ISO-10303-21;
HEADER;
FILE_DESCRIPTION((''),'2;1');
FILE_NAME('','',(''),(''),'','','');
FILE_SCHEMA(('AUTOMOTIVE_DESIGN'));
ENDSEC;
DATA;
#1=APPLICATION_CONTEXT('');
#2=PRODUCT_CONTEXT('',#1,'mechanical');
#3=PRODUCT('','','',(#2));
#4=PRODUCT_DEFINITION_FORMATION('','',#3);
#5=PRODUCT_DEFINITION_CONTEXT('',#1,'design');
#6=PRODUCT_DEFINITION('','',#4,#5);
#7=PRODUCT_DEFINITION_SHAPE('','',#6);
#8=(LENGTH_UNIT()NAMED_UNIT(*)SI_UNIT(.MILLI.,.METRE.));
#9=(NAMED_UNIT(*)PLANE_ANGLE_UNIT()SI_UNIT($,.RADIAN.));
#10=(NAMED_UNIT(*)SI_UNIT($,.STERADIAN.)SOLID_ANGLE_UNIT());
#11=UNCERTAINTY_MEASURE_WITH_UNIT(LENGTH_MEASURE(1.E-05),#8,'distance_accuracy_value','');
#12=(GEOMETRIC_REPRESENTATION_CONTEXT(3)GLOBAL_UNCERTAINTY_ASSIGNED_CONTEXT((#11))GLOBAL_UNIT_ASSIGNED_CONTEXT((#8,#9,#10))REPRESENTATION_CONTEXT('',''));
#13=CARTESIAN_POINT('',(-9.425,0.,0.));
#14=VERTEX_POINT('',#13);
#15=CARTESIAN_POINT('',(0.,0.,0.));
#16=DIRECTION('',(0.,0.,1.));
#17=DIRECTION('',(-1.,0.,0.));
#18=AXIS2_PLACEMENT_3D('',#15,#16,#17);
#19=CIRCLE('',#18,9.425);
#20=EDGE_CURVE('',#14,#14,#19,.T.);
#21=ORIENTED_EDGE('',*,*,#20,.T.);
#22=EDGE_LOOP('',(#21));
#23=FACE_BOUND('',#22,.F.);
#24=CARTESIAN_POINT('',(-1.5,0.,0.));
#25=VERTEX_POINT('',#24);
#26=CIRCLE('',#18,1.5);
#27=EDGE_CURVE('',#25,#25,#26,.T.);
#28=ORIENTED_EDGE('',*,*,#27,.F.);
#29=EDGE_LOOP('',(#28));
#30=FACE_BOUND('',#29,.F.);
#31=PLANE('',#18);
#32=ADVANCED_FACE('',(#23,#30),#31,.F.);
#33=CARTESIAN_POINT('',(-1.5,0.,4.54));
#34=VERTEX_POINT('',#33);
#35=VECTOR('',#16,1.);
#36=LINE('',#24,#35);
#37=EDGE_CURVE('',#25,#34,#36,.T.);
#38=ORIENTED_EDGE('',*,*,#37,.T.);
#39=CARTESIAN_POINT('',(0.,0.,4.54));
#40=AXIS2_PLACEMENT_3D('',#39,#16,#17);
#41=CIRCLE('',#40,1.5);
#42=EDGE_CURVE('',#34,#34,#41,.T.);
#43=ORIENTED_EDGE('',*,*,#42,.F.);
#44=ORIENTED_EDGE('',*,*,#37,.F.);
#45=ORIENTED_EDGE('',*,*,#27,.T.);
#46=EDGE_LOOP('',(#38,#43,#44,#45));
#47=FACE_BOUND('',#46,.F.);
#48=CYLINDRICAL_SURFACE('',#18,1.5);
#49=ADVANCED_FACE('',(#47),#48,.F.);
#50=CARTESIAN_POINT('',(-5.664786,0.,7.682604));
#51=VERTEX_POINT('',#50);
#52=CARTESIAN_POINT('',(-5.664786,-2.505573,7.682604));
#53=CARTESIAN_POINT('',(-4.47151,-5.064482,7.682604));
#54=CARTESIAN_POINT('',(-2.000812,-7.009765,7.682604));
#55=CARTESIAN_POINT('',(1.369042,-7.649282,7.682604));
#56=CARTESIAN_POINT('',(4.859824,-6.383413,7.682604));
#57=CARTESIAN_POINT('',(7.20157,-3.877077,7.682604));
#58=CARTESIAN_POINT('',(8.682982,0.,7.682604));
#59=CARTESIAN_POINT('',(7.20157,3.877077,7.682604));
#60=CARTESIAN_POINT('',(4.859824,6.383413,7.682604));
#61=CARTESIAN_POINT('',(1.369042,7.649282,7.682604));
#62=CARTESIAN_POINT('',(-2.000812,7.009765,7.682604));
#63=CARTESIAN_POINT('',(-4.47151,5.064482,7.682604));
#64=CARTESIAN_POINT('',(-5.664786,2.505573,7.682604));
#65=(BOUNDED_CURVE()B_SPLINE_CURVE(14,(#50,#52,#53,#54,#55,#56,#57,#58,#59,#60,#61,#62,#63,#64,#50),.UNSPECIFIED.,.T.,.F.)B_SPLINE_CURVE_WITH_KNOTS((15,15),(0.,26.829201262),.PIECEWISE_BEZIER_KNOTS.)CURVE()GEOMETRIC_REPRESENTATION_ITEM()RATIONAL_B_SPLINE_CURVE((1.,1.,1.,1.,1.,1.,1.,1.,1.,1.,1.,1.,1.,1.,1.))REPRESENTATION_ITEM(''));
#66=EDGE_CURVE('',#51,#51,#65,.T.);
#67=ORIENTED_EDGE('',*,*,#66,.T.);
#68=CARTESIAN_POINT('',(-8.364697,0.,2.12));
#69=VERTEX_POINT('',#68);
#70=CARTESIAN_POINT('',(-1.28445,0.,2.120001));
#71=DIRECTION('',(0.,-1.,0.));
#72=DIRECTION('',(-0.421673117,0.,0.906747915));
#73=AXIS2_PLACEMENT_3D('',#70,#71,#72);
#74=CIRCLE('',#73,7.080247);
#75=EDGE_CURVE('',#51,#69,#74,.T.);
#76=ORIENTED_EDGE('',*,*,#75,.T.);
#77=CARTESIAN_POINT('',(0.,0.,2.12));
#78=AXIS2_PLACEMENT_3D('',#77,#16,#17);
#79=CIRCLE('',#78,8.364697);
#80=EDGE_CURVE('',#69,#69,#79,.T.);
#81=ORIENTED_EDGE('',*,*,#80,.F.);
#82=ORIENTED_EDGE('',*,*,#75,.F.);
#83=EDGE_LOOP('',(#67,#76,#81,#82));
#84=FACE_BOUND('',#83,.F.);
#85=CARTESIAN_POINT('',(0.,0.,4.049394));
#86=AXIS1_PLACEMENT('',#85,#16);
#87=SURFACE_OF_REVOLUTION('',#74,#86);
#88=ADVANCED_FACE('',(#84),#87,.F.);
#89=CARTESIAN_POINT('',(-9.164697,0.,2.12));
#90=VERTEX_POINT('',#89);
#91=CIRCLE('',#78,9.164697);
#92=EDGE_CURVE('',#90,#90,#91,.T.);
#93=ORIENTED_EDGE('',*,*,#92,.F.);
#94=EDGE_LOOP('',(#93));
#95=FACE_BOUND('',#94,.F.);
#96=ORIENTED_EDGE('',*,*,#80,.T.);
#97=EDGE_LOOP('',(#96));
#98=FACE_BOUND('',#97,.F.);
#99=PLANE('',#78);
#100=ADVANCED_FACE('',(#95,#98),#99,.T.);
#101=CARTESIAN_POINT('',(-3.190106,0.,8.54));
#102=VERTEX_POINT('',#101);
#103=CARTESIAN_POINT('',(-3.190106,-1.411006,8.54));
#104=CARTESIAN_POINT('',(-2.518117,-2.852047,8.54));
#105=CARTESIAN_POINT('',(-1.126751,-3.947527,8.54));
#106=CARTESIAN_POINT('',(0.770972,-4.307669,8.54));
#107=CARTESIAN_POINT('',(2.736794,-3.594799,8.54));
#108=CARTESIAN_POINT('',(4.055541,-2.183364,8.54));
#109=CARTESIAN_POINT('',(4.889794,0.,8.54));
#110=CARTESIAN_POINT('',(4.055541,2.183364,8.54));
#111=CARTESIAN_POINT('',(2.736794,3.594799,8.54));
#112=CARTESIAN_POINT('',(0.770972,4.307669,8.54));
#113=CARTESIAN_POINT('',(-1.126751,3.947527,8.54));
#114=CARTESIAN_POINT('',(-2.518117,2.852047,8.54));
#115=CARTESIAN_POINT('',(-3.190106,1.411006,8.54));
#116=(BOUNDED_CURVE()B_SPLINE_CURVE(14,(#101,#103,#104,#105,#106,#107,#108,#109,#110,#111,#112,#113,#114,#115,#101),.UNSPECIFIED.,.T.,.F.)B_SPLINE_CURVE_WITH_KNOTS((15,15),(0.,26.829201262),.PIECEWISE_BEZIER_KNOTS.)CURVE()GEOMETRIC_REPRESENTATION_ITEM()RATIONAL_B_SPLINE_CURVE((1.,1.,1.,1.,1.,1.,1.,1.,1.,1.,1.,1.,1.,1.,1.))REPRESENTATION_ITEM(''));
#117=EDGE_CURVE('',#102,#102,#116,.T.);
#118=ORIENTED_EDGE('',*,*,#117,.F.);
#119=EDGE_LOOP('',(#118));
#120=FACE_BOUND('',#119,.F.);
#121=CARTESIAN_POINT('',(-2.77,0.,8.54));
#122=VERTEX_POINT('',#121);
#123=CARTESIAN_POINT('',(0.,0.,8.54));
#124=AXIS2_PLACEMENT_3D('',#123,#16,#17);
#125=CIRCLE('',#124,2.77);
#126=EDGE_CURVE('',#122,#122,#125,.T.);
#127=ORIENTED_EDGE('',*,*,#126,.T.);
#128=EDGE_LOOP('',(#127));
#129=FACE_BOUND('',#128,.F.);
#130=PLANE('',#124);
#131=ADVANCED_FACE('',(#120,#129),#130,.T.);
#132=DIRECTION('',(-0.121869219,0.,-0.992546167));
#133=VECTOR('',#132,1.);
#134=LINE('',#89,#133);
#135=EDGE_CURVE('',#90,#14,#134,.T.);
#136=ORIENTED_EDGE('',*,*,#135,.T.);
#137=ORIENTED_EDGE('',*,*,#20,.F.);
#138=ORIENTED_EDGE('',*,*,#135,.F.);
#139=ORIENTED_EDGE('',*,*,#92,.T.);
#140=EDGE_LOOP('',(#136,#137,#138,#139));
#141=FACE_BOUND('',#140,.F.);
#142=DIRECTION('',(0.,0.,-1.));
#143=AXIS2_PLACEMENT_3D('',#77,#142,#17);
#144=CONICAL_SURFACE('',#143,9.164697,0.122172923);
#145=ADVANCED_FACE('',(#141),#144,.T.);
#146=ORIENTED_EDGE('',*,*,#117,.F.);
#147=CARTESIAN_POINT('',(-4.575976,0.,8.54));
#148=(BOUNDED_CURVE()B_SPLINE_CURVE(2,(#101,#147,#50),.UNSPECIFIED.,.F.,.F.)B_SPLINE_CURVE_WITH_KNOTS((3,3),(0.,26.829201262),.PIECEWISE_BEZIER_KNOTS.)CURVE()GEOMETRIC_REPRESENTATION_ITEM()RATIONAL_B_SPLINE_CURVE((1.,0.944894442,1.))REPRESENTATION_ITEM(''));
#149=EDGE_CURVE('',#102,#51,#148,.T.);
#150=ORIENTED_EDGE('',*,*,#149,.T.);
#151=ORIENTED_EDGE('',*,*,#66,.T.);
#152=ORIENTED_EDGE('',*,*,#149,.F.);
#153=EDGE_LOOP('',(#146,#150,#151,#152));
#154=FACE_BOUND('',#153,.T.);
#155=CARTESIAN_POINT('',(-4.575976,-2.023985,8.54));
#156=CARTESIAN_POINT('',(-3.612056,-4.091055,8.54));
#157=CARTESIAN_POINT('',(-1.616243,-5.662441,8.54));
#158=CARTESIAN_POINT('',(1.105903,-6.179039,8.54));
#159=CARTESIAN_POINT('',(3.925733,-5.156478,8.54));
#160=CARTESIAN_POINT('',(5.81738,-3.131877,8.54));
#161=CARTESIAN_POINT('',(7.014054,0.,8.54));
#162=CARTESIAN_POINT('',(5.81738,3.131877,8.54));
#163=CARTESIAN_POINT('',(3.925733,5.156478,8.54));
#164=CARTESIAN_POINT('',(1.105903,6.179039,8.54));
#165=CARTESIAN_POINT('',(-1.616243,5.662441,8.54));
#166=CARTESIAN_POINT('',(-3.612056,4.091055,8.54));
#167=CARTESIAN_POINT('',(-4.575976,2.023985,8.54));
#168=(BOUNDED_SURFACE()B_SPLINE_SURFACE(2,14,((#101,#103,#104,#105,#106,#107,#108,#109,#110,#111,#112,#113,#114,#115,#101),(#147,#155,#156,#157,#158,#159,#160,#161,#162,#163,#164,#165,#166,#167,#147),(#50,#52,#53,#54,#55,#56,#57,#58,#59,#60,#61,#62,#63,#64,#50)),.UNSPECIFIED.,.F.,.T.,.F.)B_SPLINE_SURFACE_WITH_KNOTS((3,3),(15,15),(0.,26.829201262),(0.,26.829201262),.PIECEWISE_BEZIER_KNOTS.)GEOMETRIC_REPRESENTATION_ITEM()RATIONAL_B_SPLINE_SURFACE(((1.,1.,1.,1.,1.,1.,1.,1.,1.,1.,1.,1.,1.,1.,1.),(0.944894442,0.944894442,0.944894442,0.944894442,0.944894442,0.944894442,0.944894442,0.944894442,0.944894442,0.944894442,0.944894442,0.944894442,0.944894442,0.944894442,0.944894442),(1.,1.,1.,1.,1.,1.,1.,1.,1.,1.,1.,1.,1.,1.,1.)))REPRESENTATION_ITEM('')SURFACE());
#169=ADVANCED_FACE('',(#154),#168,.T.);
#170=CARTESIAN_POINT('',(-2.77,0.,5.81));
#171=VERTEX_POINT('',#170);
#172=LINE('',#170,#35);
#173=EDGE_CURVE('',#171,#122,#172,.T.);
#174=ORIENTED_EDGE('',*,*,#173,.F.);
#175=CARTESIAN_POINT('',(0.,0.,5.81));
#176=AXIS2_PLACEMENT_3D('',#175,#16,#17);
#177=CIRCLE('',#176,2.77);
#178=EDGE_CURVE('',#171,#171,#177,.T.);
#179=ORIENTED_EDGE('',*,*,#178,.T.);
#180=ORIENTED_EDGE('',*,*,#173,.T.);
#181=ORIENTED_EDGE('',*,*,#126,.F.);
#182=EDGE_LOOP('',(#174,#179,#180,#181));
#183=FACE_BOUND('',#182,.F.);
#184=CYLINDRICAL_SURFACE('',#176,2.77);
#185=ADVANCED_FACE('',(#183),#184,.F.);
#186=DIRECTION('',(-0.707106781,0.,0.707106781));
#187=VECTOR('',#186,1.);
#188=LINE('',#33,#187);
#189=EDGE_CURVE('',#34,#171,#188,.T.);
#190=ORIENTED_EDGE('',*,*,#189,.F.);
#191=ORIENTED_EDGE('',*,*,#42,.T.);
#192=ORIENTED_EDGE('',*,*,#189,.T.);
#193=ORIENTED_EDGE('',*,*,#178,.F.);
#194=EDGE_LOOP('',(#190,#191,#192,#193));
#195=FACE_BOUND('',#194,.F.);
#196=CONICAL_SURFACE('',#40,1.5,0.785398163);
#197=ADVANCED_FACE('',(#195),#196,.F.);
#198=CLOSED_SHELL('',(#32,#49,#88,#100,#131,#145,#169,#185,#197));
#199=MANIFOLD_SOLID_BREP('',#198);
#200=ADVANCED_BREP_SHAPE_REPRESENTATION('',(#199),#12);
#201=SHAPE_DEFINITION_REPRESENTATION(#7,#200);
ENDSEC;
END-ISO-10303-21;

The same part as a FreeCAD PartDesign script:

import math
import FreeCAD as App
import Part
import Sketcher

V = App.Vector
Q = App.Units.Quantity


def edges_at(feature, points):
    """Names of the edges that pass closest to the given points."""
    edges = feature.Shape.Edges
    near = lambda p: min(range(len(edges)), key=lambda i: edges[i].distToShape(Part.Vertex(*p))[0])
    return sorted({f"Edge{near(p) + 1}" for p in points})

doc = App.newDocument("Part")
body = doc.addObject("PartDesign::Body", "Body")

sketch1 = doc.addObject("Sketcher::SketchObject", "Sketch")
body.addObject(sketch1)
sketch1.AttachmentSupport = (doc.XZ_Plane, [""])
sketch1.MapMode = "FlatFace"
sketch1.addGeometry(Part.LineSegment(V(-9.4, 0, 0), V(-1.5, 0, 0)), False)
sketch1.addGeometry(Part.LineSegment(V(-1.5, 0, 0), V(-1.5, 4.5, 0)), False)
sketch1.addGeometry(Part.LineSegment(V(-1.5, 4.5, 0), V(-2.8, 5.8, 0)), False)
sketch1.addGeometry(Part.LineSegment(V(-2.8, 5.8, 0), V(-2.8, 8.5, 0)), False)
sketch1.addGeometry(Part.LineSegment(V(-2.8, 8.5, 0), V(-4.3, 8.5, 0)), False)
sketch1.addGeometry(Part.ArcOfCircle(Part.Circle(V(-1.3, 2.1, 0), V(0, 0, 1), 7.1), math.radians(115), math.radians(180)), False)
sketch1.addGeometry(Part.LineSegment(V(-8.4, 2.1, 0), V(-9.2, 2.1, 0)), False)
sketch1.addGeometry(Part.LineSegment(V(-9.2, 2.1, 0), V(-9.4, 0, 0)), False)
sketch1.addConstraint(Sketcher.Constraint("Coincident", 0, 2, 1, 1))
sketch1.addConstraint(Sketcher.Constraint("Coincident", 1, 2, 2, 1))
sketch1.addConstraint(Sketcher.Constraint("Coincident", 2, 2, 3, 1))
sketch1.addConstraint(Sketcher.Constraint("Coincident", 3, 2, 4, 1))
sketch1.addConstraint(Sketcher.Constraint("Coincident", 4, 2, 5, 1))
sketch1.addConstraint(Sketcher.Constraint("Coincident", 5, 2, 6, 1))
sketch1.addConstraint(Sketcher.Constraint("Coincident", 6, 2, 7, 1))
sketch1.addConstraint(Sketcher.Constraint("Coincident", 7, 2, 0, 1))
sketch1.addConstraint(Sketcher.Constraint("Horizontal", 0))
sketch1.addConstraint(Sketcher.Constraint("Vertical", 1))
sketch1.addConstraint(Sketcher.Constraint("Vertical", 3))
sketch1.addConstraint(Sketcher.Constraint("Horizontal", 4))
sketch1.addConstraint(Sketcher.Constraint("Horizontal", 6))
sketch1.addConstraint(Sketcher.Constraint("PointOnObject", 0, 2, -1))
sketch1.addConstraint(Sketcher.Constraint("Angle", 2, Q("135 deg")))
sketch1.addConstraint(Sketcher.Constraint("Angle", 7, Q("-96.999993 deg")))
sketch1.addConstraint(Sketcher.Constraint("DistanceX", 4, 2, 4, 1, Q("1.5 mm")))
sketch1.addConstraint(Sketcher.Constraint("DistanceX", 6, 2, 6, 1, Q("0.8 mm")))
sketch1.addConstraint(Sketcher.Constraint("DistanceY", 1, 2, 3, 2, Q("4 mm")))
sketch1.addConstraint(Sketcher.Constraint("DistanceY", 1, 1, 1, 2, Q("4.54 mm")))
sketch1.addConstraint(Sketcher.Constraint("DistanceY", 3, 1, 3, 2, Q("2.73 mm")))
sketch1.addConstraint(Sketcher.Constraint("DistanceX", 0, 2, -1, 1, Q("1.5 mm")))
sketch1.addConstraint(Sketcher.Constraint("DistanceX", 0, 1, 0, 2, Q("7.925 mm")))
sketch1.addConstraint(Sketcher.Constraint("DistanceY", -1, 1, 5, 3, Q("2.120001 mm")))
sketch1.addConstraint(Sketcher.Constraint("DistanceY", -1, 1, 5, 2, Q("2.12 mm")))
revolution = doc.addObject("PartDesign::Revolution", "Revolution")
body.addObject(revolution)
revolution.Profile = sketch1
revolution.ReferenceAxis = (sketch1, ["V_Axis"])
revolution.Angle = 360
doc.recompute()

fillet = doc.addObject("PartDesign::Fillet", "Fillet")
body.addObject(fillet)
fillet.Base = (revolution, edges_at(revolution, [(4.27, 0, 8.54)]))
fillet.Radius = 4

doc.recompute()
